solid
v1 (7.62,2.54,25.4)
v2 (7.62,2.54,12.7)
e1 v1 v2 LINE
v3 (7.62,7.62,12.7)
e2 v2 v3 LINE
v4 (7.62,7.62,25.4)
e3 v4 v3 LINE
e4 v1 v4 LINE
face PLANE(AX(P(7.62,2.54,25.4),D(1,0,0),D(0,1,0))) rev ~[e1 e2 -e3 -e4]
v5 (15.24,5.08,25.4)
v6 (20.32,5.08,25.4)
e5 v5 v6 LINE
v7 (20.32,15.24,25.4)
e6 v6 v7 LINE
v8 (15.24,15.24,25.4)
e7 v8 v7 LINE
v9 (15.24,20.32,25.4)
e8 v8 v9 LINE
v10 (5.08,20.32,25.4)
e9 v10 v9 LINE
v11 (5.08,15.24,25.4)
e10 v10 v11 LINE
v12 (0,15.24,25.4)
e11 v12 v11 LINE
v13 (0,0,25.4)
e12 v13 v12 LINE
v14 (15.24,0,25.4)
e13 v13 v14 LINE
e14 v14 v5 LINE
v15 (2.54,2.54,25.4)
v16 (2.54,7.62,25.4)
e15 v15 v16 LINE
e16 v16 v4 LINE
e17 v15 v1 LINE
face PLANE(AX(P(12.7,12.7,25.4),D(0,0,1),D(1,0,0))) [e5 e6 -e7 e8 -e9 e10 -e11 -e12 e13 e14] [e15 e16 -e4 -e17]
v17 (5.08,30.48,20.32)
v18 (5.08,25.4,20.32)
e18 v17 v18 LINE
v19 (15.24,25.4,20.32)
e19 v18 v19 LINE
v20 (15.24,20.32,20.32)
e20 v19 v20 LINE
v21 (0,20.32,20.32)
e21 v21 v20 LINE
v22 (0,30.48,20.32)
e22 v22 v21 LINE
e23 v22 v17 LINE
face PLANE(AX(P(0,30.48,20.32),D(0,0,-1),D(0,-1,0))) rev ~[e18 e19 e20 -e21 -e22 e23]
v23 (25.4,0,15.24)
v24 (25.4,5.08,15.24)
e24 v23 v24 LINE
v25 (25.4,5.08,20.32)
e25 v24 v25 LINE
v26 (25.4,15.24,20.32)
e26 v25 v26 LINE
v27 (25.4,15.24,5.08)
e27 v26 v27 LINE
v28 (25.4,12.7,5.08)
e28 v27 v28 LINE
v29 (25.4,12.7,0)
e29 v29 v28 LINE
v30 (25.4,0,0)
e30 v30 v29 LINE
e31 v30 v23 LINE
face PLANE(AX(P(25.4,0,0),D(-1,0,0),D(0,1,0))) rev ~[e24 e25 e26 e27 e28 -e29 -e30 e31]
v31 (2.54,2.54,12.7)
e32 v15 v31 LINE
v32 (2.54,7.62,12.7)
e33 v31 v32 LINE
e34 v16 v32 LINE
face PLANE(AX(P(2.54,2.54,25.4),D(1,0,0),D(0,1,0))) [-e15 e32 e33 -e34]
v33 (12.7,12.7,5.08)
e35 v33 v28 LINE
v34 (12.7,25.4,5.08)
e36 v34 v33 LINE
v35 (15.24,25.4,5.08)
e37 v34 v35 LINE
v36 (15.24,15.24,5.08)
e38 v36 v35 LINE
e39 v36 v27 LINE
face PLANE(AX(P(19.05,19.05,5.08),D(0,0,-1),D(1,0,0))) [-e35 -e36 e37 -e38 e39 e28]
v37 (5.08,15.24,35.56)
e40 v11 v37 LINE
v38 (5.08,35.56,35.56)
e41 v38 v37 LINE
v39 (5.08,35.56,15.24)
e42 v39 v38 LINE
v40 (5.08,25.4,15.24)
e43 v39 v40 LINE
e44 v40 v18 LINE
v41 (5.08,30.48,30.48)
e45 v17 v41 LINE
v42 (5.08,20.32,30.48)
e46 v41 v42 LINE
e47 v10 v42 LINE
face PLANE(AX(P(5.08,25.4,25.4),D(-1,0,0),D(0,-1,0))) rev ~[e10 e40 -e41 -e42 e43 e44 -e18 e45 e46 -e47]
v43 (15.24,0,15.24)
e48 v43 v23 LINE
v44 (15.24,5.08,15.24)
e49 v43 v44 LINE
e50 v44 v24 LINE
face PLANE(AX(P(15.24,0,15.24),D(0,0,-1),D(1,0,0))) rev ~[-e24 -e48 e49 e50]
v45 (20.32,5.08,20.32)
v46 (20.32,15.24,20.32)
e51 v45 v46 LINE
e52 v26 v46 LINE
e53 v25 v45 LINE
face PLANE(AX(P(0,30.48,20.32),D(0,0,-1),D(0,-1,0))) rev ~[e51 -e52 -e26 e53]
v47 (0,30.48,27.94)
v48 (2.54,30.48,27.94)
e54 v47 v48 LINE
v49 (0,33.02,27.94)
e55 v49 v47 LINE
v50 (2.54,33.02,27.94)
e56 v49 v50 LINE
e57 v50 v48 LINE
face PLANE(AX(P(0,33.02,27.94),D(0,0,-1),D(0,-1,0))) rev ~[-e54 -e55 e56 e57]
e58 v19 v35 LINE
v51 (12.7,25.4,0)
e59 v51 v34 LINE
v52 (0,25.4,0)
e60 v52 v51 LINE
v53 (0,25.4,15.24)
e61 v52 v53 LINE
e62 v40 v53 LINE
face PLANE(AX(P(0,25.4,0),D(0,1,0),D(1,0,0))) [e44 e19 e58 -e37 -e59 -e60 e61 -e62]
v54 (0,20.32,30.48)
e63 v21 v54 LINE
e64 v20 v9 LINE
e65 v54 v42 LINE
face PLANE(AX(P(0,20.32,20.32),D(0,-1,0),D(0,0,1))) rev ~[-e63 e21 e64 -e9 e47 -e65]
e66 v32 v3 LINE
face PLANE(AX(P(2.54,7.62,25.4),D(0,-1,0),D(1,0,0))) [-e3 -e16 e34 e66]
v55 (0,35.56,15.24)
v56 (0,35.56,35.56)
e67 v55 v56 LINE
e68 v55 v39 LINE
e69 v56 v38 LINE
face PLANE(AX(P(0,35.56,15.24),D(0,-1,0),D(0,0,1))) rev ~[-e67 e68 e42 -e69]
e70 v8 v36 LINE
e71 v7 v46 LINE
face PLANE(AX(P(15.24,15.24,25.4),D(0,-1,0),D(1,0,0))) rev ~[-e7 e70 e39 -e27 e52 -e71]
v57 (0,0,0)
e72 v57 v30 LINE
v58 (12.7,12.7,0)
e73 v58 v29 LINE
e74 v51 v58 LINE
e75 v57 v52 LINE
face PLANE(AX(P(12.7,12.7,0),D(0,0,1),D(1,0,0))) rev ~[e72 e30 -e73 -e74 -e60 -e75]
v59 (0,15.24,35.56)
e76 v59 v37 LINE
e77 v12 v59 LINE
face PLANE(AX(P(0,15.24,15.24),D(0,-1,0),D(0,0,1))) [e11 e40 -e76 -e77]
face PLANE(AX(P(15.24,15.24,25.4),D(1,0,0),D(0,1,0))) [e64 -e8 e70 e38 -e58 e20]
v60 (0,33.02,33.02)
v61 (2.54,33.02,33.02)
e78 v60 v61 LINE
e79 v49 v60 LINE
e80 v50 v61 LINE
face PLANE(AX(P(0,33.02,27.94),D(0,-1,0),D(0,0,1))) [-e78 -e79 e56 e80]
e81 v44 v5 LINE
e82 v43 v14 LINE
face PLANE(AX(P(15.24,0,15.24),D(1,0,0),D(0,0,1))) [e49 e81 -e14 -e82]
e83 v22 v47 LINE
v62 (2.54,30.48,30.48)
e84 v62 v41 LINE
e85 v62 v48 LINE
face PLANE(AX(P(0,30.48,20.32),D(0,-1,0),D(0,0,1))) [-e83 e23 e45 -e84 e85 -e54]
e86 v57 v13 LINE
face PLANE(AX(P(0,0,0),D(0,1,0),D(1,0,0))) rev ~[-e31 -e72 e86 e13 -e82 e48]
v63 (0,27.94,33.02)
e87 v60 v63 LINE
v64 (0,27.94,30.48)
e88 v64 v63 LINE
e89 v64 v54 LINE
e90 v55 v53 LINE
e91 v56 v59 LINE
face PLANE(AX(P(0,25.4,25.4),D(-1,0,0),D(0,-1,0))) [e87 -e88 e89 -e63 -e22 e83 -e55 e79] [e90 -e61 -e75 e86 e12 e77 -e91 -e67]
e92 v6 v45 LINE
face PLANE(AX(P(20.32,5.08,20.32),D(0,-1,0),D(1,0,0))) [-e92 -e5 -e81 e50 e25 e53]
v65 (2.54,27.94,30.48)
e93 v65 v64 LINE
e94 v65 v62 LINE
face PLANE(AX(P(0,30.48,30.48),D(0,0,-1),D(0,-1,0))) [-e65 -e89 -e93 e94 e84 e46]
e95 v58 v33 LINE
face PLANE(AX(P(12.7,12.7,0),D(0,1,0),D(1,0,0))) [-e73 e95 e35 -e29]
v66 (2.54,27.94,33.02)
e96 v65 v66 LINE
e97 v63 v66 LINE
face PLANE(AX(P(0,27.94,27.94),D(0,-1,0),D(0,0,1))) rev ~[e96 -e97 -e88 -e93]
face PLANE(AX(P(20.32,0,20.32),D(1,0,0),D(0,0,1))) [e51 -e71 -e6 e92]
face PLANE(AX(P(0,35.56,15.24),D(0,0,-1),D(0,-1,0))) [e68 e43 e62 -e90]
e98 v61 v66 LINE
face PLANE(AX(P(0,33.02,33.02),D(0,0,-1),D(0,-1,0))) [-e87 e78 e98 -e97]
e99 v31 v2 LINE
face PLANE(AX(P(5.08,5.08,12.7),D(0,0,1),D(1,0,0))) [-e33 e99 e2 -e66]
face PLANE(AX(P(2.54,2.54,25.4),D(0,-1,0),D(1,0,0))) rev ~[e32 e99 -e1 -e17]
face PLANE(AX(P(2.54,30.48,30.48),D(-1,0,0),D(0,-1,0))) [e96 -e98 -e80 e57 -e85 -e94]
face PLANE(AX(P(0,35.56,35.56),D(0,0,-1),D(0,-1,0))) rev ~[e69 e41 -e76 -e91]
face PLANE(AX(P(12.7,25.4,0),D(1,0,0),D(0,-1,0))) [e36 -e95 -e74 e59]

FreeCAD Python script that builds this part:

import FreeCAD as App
import Part
import Sketcher

V = App.Vector
Q = App.Units.Quantity

doc = App.newDocument("Part")
params = doc.addObject("Spreadsheet::Sheet", "Params")
for row, (alias, value) in enumerate([
    ("sketch1_width", "1 in"),
    ("pad1_length", "1 in"),
    ("sketch2_width", "0.2 in"),
    ("pocket1_length", "1 in"),
    ("sketch3_width", "0.4 in"),
    ("pocket2_length", "0.2 in"),
    ("sketch4_width", "0.8 in"),
    ("pad2_length", "0.2 in"),
    ("sketch5_width", "0.4 in"),
    ("pocket3_length", "1 in"),
    ("sketch6_width", "0.2 in"),
    ("pocket4_length", "0.5 in"),
    ("sketch7_width", "0.4 in"),
    ("pocket5_length", "1 in"),
    ("sketch8_width", "0.5 in"),
    ("pocket6_length", "0.2 in"),
    ("sketch9_width", "0.2 in"),
    ("pocket7_length", "0.1 in"),
], start=1):
    params.set(f"A{row}", alias)
    params.set(f"B{row}", "=" + value)
    params.setAlias(f"B{row}", alias)

body = doc.addObject("PartDesign::Body", "Body")

# Sketch on XY plane
sketch1 = doc.addObject("Sketcher::SketchObject", "Sketch")
body.addObject(sketch1)
sketch1.AttachmentSupport = (doc.XY_Plane, [""])
sketch1.MapMode = "FlatFace"
sketch1.addGeometry([
    Part.LineSegment(V(0, 25, 0), V(0, 0, 0)),
    Part.LineSegment(V(0, 0, 0), V(25, 0, 0)),
    Part.LineSegment(V(25, 0, 0), V(25, 25, 0)),
    Part.LineSegment(V(25, 25, 0), V(0, 25, 0)),
], False)
sketch1.addConstraint([
    Sketcher.Constraint("Coincident", 0, 2, 1, 1),
    Sketcher.Constraint("Coincident", 1, 2, 2, 1),
    Sketcher.Constraint("Coincident", 2, 2, 3, 1),
    Sketcher.Constraint("Coincident", 3, 2, 0, 1),
    Sketcher.Constraint("Vertical", 0),
    Sketcher.Constraint("Horizontal", 1),
    Sketcher.Constraint("Vertical", 2),
    Sketcher.Constraint("Horizontal", 3),
    Sketcher.Constraint("Coincident", 0, 2, -1, 1),
    Sketcher.Constraint("Equal", 3, 0),
    Sketcher.Constraint("DistanceX", 1, 1, 1, 2, Q("1 in")),
])
sketch1.setExpression("Constraints[10]", "Params.sketch1_width")
pad1 = doc.addObject("PartDesign::Pad", "Pad")
body.addObject(pad1)
pad1.Profile = sketch1
pad1.setExpression("Length", "Params.pad1_length")

# Sketch on XZ plane
sketch2 = doc.addObject("Sketcher::SketchObject", "Sketch001")
body.addObject(sketch2)
sketch2.AttachmentSupport = (doc.XZ_Plane, [""])
sketch2.MapMode = "FlatFace"
sketch2.addGeometry([
    Part.LineSegment(V(20, 25, 0), V(20, 20, 0)),
    Part.LineSegment(V(20, 20, 0), V(25, 20, 0)),
    Part.LineSegment(V(25, 20, 0), V(25, 25, 0)),
    Part.LineSegment(V(25, 25, 0), V(20, 25, 0)),
], False)
sketch2.addConstraint([
    Sketcher.Constraint("Coincident", 0, 2, 1, 1),
    Sketcher.Constraint("Coincident", 1, 2, 2, 1),
    Sketcher.Constraint("Coincident", 2, 2, 3, 1),
    Sketcher.Constraint("Coincident", 3, 2, 0, 1),
    Sketcher.Constraint("Vertical", 0),
    Sketcher.Constraint("Horizontal", 1),
    Sketcher.Constraint("Vertical", 2),
    Sketcher.Constraint("Horizontal", 3),
    Sketcher.Constraint("Equal", 3, 0),
    Sketcher.Constraint("DistanceX", 1, 1, 1, 2, Q("0.2 in")),
    Sketcher.Constraint("DistanceX", -1, 1, 1, 2, Q("1 in")),
    Sketcher.Constraint("DistanceY", -1, 1, 2, 2, Q("1 in")),
])
sketch2.setExpression("Constraints[9]", "Params.sketch2_width")
pocket1 = doc.addObject("PartDesign::Pocket", "Pocket")
body.addObject(pocket1)
pocket1.Profile = sketch2
pocket1.setExpression("Length", "Params.pocket1_length")

# Sketch on XZ plane
sketch3 = doc.addObject("Sketcher::SketchObject", "Sketch002")
body.addObject(sketch3)
sketch3.AttachmentSupport = (doc.XZ_Plane, [""])
sketch3.MapMode = "FlatFace"
sketch3.addGeometry([
    Part.LineSegment(V(15, 25, 0), V(15, 15, 0)),
    Part.LineSegment(V(15, 15, 0), V(25, 15, 0)),
    Part.LineSegment(V(25, 15, 0), V(25, 25, 0)),
    Part.LineSegment(V(25, 25, 0), V(15, 25, 0)),
], False)
sketch3.addConstraint([
    Sketcher.Constraint("Coincident", 0, 2, 1, 1),
    Sketcher.Constraint("Coincident", 1, 2, 2, 1),
    Sketcher.Constraint("Coincident", 2, 2, 3, 1),
    Sketcher.Constraint("Coincident", 3, 2, 0, 1),
    Sketcher.Constraint("Vertical", 0),
    Sketcher.Constraint("Horizontal", 1),
    Sketcher.Constraint("Vertical", 2),
    Sketcher.Constraint("Horizontal", 3),
    Sketcher.Constraint("Equal", 3, 0),
    Sketcher.Constraint("DistanceX", 1, 1, 1, 2, Q("0.4 in")),
    Sketcher.Constraint("DistanceX", -1, 1, 1, 2, Q("1 in")),
    Sketcher.Constraint("DistanceY", -1, 1, 2, 2, Q("1 in")),
])
sketch3.setExpression("Constraints[9]", "Params.sketch3_width")
pocket2 = doc.addObject("PartDesign::Pocket", "Pocket001")
body.addObject(pocket2)
pocket2.Profile = sketch3
pocket2.setExpression("Length", "Params.pocket2_length")

# Sketch on YZ plane
sketch4 = doc.addObject("Sketcher::SketchObject", "Sketch003")
body.addObject(sketch4)
sketch4.AttachmentSupport = (doc.YZ_Plane, [""])
sketch4.MapMode = "FlatFace"
sketch4.addGeometry([
    Part.LineSegment(V(36, 36, 0), V(36, 15, 0)),
    Part.LineSegment(V(36, 15, 0), V(15, 15, 0)),
    Part.LineSegment(V(15, 15, 0), V(15, 36, 0)),
    Part.LineSegment(V(15, 36, 0), V(36, 36, 0)),
], False)
sketch4.addConstraint([
    Sketcher.Constraint("Coincident", 0, 2, 1, 1),
    Sketcher.Constraint("Coincident", 1, 2, 2, 1),
    Sketcher.Constraint("Coincident", 2, 2, 3, 1),
    Sketcher.Constraint("Coincident", 3, 2, 0, 1),
    Sketcher.Constraint("Vertical", 0),
    Sketcher.Constraint("Horizontal", 1),
    Sketcher.Constraint("Vertical", 2),
    Sketcher.Constraint("Horizontal", 3),
    Sketcher.Constraint("Equal", 3, 0),
    Sketcher.Constraint("DistanceX", 1, 2, 1, 1, Q("0.8 in")),
    Sketcher.Constraint("DistanceX", -1, 1, 0, 2, Q("1.4 in")),
    Sketcher.Constraint("DistanceY", -1, 1, 0, 2, Q("0.6 in")),
])
sketch4.setExpression("Constraints[9]", "Params.sketch4_width")
pad2 = doc.addObject("PartDesign::Pad", "Pad001")
body.addObject(pad2)
pad2.Profile = sketch4
pad2.setExpression("Length", "Params.pad2_length")

# Sketch on YZ plane
sketch5 = doc.addObject("Sketcher::SketchObject", "Sketch004")
body.addObject(sketch5)
sketch5.AttachmentSupport = (doc.YZ_Plane, [""])
sketch5.MapMode = "FlatFace"
sketch5.addGeometry([
    Part.LineSegment(V(30, 30, 0), V(30, 20, 0)),
    Part.LineSegment(V(30, 20, 0), V(20, 20, 0)),
    Part.LineSegment(V(20, 20, 0), V(20, 30, 0)),
    Part.LineSegment(V(20, 30, 0), V(30, 30, 0)),
], False)
sketch5.addConstraint([
    Sketcher.Constraint("Coincident", 0, 2, 1, 1),
    Sketcher.Constraint("Coincident", 1, 2, 2, 1),
    Sketcher.Constraint("Coincident", 2, 2, 3, 1),
    Sketcher.Constraint("Coincident", 3, 2, 0, 1),
    Sketcher.Constraint("Vertical", 0),
    Sketcher.Constraint("Horizontal", 1),
    Sketcher.Constraint("Vertical", 2),
    Sketcher.Constraint("Horizontal", 3),
    Sketcher.Constraint("Equal", 3, 0),
    Sketcher.Constraint("DistanceX", 1, 2, 1, 1, Q("0.4 in")),
    Sketcher.Constraint("DistanceX", -1, 1, 0, 2, Q("1.2 in")),
    Sketcher.Constraint("DistanceY", -1, 1, 0, 2, Q("0.8 in")),
])
sketch5.setExpression("Constraints[9]", "Params.sketch5_width")
pocket3 = doc.addObject("PartDesign::Pocket", "Pocket002")
body.addObject(pocket3)
pocket3.Profile = sketch5
pocket3.setExpression("Length", "Params.pocket3_length")
pocket3.Reversed = True

# Sketch on XY plane
sketch6 = doc.addObject("Sketcher::SketchObject", "Sketch005")
body.addObject(sketch6)
sketch6.AttachmentSupport = (doc.XY_Plane, [""])
sketch6.MapMode = "FlatFace"
sketch6.AttachmentOffset = App.Placement(V(0, 0, 1 * 25.4), App.Rotation())
sketch6.addGeometry([
    Part.LineSegment(V(3, 8, 0), V(3, 3, 0)),
    Part.LineSegment(V(3, 3, 0), V(8, 3, 0)),
    Part.LineSegment(V(8, 3, 0), V(8, 8, 0)),
    Part.LineSegment(V(8, 8, 0), V(3, 8, 0)),
], False)
sketch6.addConstraint([
    Sketcher.Constraint("Coincident", 0, 2, 1, 1),
    Sketcher.Constraint("Coincident", 1, 2, 2, 1),
    Sketcher.Constraint("Coincident", 2, 2, 3, 1),
    Sketcher.Constraint("Coincident", 3, 2, 0, 1),
    Sketcher.Constraint("Vertical", 0),
    Sketcher.Constraint("Horizontal", 1),
    Sketcher.Constraint("Vertical", 2),
    Sketcher.Constraint("Horizontal", 3),
    Sketcher.Constraint("Equal", 3, 0),
    Sketcher.Constraint("DistanceX", 1, 1, 1, 2, Q("0.2 in")),
    Sketcher.Constraint("DistanceX", -1, 1, 0, 2, Q("0.1 in")),
    Sketcher.Constraint("DistanceY", -1, 1, 0, 2, Q("0.1 in")),
])
sketch6.setExpression("Constraints[9]", "Params.sketch6_width")
pocket4 = doc.addObject("PartDesign::Pocket", "Pocket003")
body.addObject(pocket4)
pocket4.Profile = sketch6
pocket4.setExpression("Length", "Params.pocket4_length")

# Sketch on XY plane
sketch7 = doc.addObject("Sketcher::SketchObject", "Sketch006")
body.addObject(sketch7)
sketch7.AttachmentSupport = (doc.XY_Plane, [""])
sketch7.MapMode = "FlatFace"
sketch7.AttachmentOffset = App.Placement(V(0, 0, 1 * 25.4), App.Rotation())
sketch7.addGeometry([
    Part.LineSegment(V(15, 25, 0), V(15, 15, 0)),
    Part.LineSegment(V(15, 15, 0), V(25, 15, 0)),
    Part.LineSegment(V(25, 15, 0), V(25, 25, 0)),
    Part.LineSegment(V(25, 25, 0), V(15, 25, 0)),
], False)
sketch7.addConstraint([
    Sketcher.Constraint("Coincident", 0, 2, 1, 1),
    Sketcher.Constraint("Coincident", 1, 2, 2, 1),
    Sketcher.Constraint("Coincident", 2, 2, 3, 1),
    Sketcher.Constraint("Coincident", 3, 2, 0, 1),
    Sketcher.Constraint("Vertical", 0),
    Sketcher.Constraint("Horizontal", 1),
    Sketcher.Constraint("Vertical", 2),
    Sketcher.Constraint("Horizontal", 3),
    Sketcher.Constraint("Equal", 3, 0),
    Sketcher.Constraint("DistanceX", 1, 1, 1, 2, Q("0.4 in")),
    Sketcher.Constraint("DistanceX", -1, 1, 1, 2, Q("1 in")),
    Sketcher.Constraint("DistanceY", -1, 1, 2, 2, Q("1 in")),
])
sketch7.setExpression("Constraints[9]", "Params.sketch7_width")
pocket5 = doc.addObject("PartDesign::Pocket", "Pocket004")
body.addObject(pocket5)
pocket5.Profile = sketch7
pocket5.setExpression("Length", "Params.pocket5_length")

# Sketch on XY plane
sketch8 = doc.addObject("Sketcher::SketchObject", "Sketch007")
body.addObject(sketch8)
sketch8.AttachmentSupport = (doc.XY_Plane, [""])
sketch8.MapMode = "FlatFace"
sketch8.addGeometry([
    Part.LineSegment(V(13, 13, 0), V(13, 25, 0)),
    Part.LineSegment(V(13, 25, 0), V(25, 25, 0)),
    Part.LineSegment(V(25, 25, 0), V(25, 13, 0)),
    Part.LineSegment(V(25, 13, 0), V(13, 13, 0)),
], False)
sketch8.addConstraint([
    Sketcher.Constraint("Coincident", 0, 2, 1, 1),
    Sketcher.Constraint("Coincident", 1, 2, 2, 1),
    Sketcher.Constraint("Coincident", 2, 2, 3, 1),
    Sketcher.Constraint("Coincident", 3, 2, 0, 1),
    Sketcher.Constraint("Vertical", 0),
    Sketcher.Constraint("Horizontal", 1),
    Sketcher.Constraint("Vertical", 2),
    Sketcher.Constraint("Horizontal", 3),
    Sketcher.Constraint("Equal", 3, 0),
    Sketcher.Constraint("DistanceX", 1, 1, 1, 2, Q("0.5 in")),
    Sketcher.Constraint("DistanceY", -1, 1, 0, 2, Q("1 in")),
    Sketcher.Constraint("DistanceX", -1, 1, 1, 2, Q("1 in")),
])
sketch8.setExpression("Constraints[9]", "Params.sketch8_width")
pocket6 = doc.addObject("PartDesign::Pocket", "Pocket005")
body.addObject(pocket6)
pocket6.Profile = sketch8
pocket6.setExpression("Length", "Params.pocket6_length")
pocket6.Reversed = True

# Sketch on YZ plane
sketch9 = doc.addObject("Sketcher::SketchObject", "Sketch008")
body.addObject(sketch9)
sketch9.AttachmentSupport = (doc.YZ_Plane, [""])
sketch9.MapMode = "FlatFace"
sketch9.addGeometry([
    Part.LineSegment(V(33, 33, 0), V(33, 28, 0)),
    Part.LineSegment(V(33, 28, 0), V(28, 28, 0)),
    Part.LineSegment(V(28, 28, 0), V(28, 33, 0)),
    Part.LineSegment(V(28, 33, 0), V(33, 33, 0)),
], False)
sketch9.addConstraint([
    Sketcher.Constraint("Coincident", 0, 2, 1, 1),
    Sketcher.Constraint("Coincident", 1, 2, 2, 1),
    Sketcher.Constraint("Coincident", 2, 2, 3, 1),
    Sketcher.Constraint("Coincident", 3, 2, 0, 1),
    Sketcher.Constraint("Vertical", 0),
    Sketcher.Constraint("Horizontal", 1),
    Sketcher.Constraint("Vertical", 2),
    Sketcher.Constraint("Horizontal", 3),
    Sketcher.Constraint("Equal", 3, 0),
    Sketcher.Constraint("DistanceX", 1, 2, 1, 1, Q("0.2 in")),
    Sketcher.Constraint("DistanceX", -1, 1, 0, 2, Q("1.3 in")),
    Sketcher.Constraint("DistanceY", -1, 1, 0, 2, Q("1.1 in")),
])
sketch9.setExpression("Constraints[9]", "Params.sketch9_width")
pocket7 = doc.addObject("PartDesign::Pocket", "Pocket006")
body.addObject(pocket7)
pocket7.Profile = sketch9
pocket7.setExpression("Length", "Params.pocket7_length")
pocket7.Reversed = True

doc.recompute()
